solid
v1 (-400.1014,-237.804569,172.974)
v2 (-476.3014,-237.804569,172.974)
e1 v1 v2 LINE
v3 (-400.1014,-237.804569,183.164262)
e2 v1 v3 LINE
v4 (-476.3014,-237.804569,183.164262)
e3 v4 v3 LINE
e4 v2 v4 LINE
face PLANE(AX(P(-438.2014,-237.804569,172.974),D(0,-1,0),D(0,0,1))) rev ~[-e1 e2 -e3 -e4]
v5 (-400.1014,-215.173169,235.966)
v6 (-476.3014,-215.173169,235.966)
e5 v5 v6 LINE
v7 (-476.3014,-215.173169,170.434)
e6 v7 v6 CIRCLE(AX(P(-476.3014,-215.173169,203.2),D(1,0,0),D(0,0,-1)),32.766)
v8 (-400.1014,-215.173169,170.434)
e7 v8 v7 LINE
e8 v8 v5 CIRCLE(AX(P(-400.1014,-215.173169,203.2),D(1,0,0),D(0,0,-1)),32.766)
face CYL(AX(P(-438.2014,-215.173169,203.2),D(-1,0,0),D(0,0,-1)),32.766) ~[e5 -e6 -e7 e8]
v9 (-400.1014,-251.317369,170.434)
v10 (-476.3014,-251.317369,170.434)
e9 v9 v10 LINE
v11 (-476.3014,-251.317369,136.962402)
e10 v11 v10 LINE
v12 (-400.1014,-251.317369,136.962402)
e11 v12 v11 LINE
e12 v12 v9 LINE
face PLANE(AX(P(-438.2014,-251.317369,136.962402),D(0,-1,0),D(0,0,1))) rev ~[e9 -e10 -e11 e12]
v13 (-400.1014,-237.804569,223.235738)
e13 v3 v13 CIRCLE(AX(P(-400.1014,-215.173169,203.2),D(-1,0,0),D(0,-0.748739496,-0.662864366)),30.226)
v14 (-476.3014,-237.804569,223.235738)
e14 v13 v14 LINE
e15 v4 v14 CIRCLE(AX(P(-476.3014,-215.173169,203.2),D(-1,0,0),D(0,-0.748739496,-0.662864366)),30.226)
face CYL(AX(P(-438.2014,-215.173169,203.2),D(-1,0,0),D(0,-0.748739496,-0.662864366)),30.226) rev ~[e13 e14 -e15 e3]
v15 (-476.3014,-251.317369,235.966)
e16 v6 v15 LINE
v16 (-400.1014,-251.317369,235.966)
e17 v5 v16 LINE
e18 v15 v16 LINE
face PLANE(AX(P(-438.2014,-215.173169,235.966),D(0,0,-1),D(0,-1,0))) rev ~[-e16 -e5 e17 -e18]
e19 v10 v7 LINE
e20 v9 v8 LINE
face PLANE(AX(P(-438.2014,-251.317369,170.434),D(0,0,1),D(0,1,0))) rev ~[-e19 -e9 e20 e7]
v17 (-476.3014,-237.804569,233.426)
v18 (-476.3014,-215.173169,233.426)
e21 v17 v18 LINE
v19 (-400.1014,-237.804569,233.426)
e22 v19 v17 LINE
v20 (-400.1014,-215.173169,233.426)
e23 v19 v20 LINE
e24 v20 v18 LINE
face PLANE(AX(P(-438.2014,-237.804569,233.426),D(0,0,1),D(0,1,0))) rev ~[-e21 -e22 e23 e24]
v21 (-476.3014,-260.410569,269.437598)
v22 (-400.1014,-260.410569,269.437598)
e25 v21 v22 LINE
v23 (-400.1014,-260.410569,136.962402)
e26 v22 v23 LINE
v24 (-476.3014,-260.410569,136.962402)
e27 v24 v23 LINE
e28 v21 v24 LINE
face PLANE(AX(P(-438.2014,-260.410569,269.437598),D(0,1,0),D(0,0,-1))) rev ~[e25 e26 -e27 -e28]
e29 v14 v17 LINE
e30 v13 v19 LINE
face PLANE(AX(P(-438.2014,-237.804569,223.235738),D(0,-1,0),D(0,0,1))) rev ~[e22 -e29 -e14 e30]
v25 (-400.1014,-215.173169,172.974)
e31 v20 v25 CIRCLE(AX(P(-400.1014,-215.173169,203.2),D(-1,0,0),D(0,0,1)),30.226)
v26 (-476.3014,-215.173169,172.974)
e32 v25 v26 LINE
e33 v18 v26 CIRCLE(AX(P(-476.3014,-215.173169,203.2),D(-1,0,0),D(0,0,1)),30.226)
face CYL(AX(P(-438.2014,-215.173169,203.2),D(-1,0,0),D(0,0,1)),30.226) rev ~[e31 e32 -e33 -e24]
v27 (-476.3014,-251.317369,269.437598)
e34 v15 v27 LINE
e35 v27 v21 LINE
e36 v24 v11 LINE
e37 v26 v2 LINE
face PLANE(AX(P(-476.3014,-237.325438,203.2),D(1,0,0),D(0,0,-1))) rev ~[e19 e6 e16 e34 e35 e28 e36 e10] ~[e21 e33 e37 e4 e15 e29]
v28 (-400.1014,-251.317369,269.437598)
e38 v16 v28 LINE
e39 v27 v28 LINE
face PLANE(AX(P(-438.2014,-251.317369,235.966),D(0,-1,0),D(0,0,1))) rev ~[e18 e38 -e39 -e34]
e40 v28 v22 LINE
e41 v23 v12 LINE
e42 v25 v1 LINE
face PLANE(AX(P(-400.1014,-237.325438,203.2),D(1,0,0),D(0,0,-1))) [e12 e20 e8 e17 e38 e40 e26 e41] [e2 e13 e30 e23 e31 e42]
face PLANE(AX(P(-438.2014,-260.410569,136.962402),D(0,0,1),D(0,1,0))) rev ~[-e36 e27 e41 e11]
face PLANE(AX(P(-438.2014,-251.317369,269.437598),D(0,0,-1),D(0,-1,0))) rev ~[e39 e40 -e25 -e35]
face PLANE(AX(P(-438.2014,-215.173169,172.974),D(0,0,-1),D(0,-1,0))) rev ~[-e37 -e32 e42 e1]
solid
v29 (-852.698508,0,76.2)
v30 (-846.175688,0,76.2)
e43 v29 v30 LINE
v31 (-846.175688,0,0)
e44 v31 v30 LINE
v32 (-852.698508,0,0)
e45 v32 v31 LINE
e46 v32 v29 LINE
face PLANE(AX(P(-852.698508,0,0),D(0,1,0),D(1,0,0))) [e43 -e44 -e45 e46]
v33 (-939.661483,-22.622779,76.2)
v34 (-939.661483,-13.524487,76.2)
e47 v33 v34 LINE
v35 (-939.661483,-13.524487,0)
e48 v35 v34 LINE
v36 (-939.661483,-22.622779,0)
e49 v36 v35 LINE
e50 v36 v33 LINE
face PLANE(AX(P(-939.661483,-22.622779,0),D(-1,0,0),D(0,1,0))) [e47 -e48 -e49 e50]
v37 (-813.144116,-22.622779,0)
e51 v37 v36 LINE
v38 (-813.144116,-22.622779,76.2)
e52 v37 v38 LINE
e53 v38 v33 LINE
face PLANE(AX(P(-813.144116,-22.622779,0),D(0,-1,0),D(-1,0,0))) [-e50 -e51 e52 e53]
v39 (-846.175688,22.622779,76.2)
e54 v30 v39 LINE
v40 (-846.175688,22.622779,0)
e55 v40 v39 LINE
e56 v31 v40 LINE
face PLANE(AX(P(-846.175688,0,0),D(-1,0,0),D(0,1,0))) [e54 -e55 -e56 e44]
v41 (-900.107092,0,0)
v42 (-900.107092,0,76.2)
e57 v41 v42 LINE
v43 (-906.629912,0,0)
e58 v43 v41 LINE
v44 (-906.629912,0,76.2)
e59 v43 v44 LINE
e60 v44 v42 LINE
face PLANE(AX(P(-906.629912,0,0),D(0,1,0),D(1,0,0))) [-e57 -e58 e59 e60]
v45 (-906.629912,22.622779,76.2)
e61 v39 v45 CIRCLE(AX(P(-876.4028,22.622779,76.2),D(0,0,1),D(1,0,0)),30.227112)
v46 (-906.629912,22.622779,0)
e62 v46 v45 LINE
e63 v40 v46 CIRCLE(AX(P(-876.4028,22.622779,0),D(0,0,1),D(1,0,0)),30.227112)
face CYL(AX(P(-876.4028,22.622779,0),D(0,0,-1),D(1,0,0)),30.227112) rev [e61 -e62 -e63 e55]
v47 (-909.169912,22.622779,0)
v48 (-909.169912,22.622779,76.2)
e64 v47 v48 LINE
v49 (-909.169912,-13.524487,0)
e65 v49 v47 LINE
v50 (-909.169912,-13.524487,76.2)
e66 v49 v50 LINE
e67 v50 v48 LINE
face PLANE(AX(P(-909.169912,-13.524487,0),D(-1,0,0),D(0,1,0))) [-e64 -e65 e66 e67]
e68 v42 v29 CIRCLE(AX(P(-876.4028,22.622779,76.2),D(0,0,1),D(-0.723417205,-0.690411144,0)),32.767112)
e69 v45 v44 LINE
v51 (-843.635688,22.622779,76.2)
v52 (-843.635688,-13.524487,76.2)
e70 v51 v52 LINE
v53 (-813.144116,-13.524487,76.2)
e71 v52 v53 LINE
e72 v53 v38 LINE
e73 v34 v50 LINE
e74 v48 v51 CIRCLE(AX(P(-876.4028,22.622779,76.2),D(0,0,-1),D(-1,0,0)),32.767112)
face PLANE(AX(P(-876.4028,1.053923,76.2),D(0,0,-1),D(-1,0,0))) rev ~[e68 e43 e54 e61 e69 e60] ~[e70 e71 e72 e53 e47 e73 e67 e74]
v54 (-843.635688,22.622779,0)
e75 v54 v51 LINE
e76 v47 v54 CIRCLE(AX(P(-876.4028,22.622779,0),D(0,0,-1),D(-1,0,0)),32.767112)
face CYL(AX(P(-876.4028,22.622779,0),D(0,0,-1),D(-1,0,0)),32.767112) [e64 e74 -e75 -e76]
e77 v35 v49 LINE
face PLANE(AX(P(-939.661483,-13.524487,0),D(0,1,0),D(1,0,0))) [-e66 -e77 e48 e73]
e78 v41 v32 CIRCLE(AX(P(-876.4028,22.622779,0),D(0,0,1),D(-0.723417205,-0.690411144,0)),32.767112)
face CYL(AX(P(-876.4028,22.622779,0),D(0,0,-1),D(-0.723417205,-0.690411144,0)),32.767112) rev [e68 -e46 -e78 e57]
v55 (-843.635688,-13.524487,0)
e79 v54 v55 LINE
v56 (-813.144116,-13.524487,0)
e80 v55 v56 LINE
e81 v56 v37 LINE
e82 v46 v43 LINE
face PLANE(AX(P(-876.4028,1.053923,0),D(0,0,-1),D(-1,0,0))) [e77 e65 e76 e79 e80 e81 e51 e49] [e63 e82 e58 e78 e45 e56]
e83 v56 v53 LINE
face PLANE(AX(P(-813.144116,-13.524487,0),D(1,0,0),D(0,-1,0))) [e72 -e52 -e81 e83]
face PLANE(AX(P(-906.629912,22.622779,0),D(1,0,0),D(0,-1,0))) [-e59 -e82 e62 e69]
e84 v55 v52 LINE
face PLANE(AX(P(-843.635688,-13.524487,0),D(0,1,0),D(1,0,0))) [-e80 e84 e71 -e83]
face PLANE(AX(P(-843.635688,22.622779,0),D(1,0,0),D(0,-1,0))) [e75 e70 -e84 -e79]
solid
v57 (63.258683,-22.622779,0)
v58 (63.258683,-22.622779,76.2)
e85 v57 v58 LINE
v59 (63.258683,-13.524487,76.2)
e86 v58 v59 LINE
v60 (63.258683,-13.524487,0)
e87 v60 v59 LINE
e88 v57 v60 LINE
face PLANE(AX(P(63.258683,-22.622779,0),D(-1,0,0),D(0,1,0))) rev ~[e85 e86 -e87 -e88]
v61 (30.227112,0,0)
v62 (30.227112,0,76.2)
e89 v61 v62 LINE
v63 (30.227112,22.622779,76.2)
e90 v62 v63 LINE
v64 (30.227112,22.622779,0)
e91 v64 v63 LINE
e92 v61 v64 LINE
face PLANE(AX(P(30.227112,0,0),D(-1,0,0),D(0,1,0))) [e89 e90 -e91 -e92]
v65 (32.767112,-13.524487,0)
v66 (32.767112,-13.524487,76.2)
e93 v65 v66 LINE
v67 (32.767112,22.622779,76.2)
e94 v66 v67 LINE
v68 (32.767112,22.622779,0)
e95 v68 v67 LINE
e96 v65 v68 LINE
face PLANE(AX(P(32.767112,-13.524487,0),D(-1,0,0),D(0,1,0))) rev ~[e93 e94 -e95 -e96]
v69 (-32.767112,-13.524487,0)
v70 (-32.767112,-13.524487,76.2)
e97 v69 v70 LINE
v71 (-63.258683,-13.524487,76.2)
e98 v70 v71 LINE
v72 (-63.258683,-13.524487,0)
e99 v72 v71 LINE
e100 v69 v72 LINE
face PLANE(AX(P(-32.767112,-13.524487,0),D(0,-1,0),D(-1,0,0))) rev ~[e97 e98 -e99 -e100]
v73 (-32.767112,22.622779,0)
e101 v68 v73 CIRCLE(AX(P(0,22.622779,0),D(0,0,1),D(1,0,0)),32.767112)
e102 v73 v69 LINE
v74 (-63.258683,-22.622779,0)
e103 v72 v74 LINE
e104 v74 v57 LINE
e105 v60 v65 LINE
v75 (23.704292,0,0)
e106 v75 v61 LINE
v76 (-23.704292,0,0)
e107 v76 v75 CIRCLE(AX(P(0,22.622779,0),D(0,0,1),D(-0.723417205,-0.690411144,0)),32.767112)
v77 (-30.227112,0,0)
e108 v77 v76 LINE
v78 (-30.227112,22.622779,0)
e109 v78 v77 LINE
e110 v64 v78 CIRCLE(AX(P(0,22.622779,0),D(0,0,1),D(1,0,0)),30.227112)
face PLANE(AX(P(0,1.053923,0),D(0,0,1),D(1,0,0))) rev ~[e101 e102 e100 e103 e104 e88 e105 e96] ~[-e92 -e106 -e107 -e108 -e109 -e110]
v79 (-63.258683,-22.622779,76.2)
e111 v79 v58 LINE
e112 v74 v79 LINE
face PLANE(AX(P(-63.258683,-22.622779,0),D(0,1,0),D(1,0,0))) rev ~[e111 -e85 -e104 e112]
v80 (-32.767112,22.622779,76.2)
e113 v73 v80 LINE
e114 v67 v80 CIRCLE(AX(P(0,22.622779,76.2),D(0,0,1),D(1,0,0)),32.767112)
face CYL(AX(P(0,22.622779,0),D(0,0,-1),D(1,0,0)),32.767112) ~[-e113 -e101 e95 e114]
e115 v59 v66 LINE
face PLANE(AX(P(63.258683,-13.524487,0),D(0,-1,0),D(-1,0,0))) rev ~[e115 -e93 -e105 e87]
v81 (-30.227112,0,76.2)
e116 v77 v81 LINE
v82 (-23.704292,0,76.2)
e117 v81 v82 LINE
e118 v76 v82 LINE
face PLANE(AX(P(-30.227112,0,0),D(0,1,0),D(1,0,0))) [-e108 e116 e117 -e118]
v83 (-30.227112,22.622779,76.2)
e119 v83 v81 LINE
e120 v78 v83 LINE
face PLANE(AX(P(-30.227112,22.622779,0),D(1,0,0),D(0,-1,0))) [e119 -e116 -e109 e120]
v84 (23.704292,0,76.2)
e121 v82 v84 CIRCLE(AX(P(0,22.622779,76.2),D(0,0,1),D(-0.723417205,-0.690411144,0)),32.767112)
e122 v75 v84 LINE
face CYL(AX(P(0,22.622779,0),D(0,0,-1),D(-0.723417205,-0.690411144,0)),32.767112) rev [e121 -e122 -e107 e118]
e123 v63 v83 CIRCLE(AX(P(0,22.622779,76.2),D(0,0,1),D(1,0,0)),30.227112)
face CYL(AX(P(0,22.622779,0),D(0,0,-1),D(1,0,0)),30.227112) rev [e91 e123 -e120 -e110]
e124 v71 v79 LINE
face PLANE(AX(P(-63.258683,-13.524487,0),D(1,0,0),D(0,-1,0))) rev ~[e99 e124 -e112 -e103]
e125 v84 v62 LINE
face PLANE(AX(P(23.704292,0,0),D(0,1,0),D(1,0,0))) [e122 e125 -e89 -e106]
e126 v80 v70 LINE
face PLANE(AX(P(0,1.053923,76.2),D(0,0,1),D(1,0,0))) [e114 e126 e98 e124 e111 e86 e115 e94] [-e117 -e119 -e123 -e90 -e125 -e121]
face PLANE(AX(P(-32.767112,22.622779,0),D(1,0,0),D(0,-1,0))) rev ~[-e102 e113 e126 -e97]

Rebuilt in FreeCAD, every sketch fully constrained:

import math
import FreeCAD as App
import Part
import Sketcher

V = App.Vector
Q = App.Units.Quantity

doc = App.newDocument("Part")
body = doc.addObject("PartDesign::Body", "Body")

sketch1 = doc.addObject("Sketcher::SketchObject", "Sketch")
body.addObject(sketch1)
sketch1.AttachmentSupport = (doc.XY_Plane, [""])
sketch1.MapMode = "FlatFace"
sketch1.addGeometry(Part.LineSegment(V(63.258683, -22.622779, 0), V(63.258683, -13.524487, 0)), False)
sketch1.addGeometry(Part.LineSegment(V(63.258683, -13.524487, 0), V(32.767112, -13.524487, 0)), False)
sketch1.addGeometry(Part.LineSegment(V(32.767112, -13.524487, 0), V(32.767112, 22.622779, 0)), False)
sketch1.addGeometry(Part.ArcOfCircle(Part.Circle(V(0, 22.622779, 0), V(0, 0, 1), 32.767112), math.radians(0), math.radians(180)), False)
sketch1.addGeometry(Part.LineSegment(V(-32.767112, 22.622779, 0), V(-32.767112, -13.524487, 0)), False)
sketch1.addGeometry(Part.LineSegment(V(-32.767112, -13.524487, 0), V(-63.258683, -13.524487, 0)), False)
sketch1.addGeometry(Part.LineSegment(V(-63.258683, -13.524487, 0), V(-63.258683, -22.622779, 0)), False)
sketch1.addGeometry(Part.LineSegment(V(-63.258683, -22.622779, 0), V(63.258683, -22.622779, 0)), False)
sketch1.addGeometry(Part.LineSegment(V(-23.704292, 0, 0), V(-30.227112, 0, 0)), False)
sketch1.addGeometry(Part.LineSegment(V(-30.227112, 0, 0), V(-30.227112, 22.622779, 0)), False)
sketch1.addGeometry(Part.ArcOfCircle(Part.Circle(V(0, 22.622779, 0), V(0, 0, 1), 30.227112), math.radians(0), math.radians(180)), False)
sketch1.addGeometry(Part.LineSegment(V(30.227112, 22.622779, 0), V(30.227112, 0, 0)), False)
sketch1.addGeometry(Part.LineSegment(V(30.227112, 0, 0), V(23.704292, 0, 0)), False)
sketch1.addGeometry(Part.ArcOfCircle(Part.Circle(V(0, 22.622779, 0), V(0, 0, 1), 32.767112), math.radians(-136.337337), math.radians(-43.662663)), False)
sketch1.addConstraint(Sketcher.Constraint("Coincident", 0, 2, 1, 1))
sketch1.addConstraint(Sketcher.Constraint("Coincident", 1, 2, 2, 1))
sketch1.addConstraint(Sketcher.Constraint("Tangent", 2, 2, 3, 1))
sketch1.addConstraint(Sketcher.Constraint("Tangent", 3, 2, 4, 1))
sketch1.addConstraint(Sketcher.Constraint("Coincident", 4, 2, 5, 1))
sketch1.addConstraint(Sketcher.Constraint("Coincident", 5, 2, 6, 1))
sketch1.addConstraint(Sketcher.Constraint("Coincident", 6, 2, 7, 1))
sketch1.addConstraint(Sketcher.Constraint("Coincident", 7, 2, 0, 1))
sketch1.addConstraint(Sketcher.Constraint("Coincident", 8, 2, 9, 1))
sketch1.addConstraint(Sketcher.Constraint("Tangent", 9, 2, 10, 2))
sketch1.addConstraint(Sketcher.Constraint("Tangent", 10, 1, 11, 1))
sketch1.addConstraint(Sketcher.Constraint("Coincident", 11, 2, 12, 1))
sketch1.addConstraint(Sketcher.Constraint("Coincident", 12, 2, 13, 2))
sketch1.addConstraint(Sketcher.Constraint("Coincident", 13, 1, 8, 1))
sketch1.addConstraint(Sketcher.Constraint("Vertical", 0))
sketch1.addConstraint(Sketcher.Constraint("Horizontal", 1))
sketch1.addConstraint(Sketcher.Constraint("Vertical", 2))
sketch1.addConstraint(Sketcher.Constraint("Vertical", 4))
sketch1.addConstraint(Sketcher.Constraint("Horizontal", 5))
sketch1.addConstraint(Sketcher.Constraint("Vertical", 6))
sketch1.addConstraint(Sketcher.Constraint("Horizontal", 7))
sketch1.addConstraint(Sketcher.Constraint("Horizontal", 8))
sketch1.addConstraint(Sketcher.Constraint("Vertical", 9))
sketch1.addConstraint(Sketcher.Constraint("Vertical", 11))
sketch1.addConstraint(Sketcher.Constraint("Horizontal", 12))
sketch1.addConstraint(Sketcher.Constraint("Coincident", 10, 3, 3, 3))
sketch1.addConstraint(Sketcher.Constraint("Coincident", 13, 3, 3, 3))
sketch1.addConstraint(Sketcher.Constraint("Equal", 3, 13))
sketch1.addConstraint(Sketcher.Constraint("Symmetric", 8, 2, 11, 2, -1, 1))
sketch1.addConstraint(Sketcher.Constraint("Symmetric", 0, 2, 5, 2, -2))
sketch1.addConstraint(Sketcher.Constraint("PointOnObject", 8, 2, -1))
sketch1.addConstraint(Sketcher.Constraint("DistanceX", 4, 2, 8, 2, Q("0.1 in")))
sketch1.addConstraint(Sketcher.Constraint("Radius", 3, 32.767112))
sketch1.addConstraint(Sketcher.Constraint("DistanceX", 1, 2, 1, 1, 30.491572))
sketch1.addConstraint(Sketcher.Constraint("DistanceX", 8, 2, 8, 1, 6.522819))
sketch1.addConstraint(Sketcher.Constraint("DistanceY", 0, 1, 0, 2, 9.098292))
sketch1.addConstraint(Sketcher.Constraint("DistanceY", 2, 1, 2, 2, 36.147267))
pad1 = doc.addObject("PartDesign::Pad", "Pad")
body.addObject(pad1)
pad1.Profile = sketch1
pad1.Length = Q("3 in")
body2 = doc.addObject("PartDesign::Body", "Body001")

sketch2 = doc.addObject("Sketcher::SketchObject", "Sketch001")
body2.addObject(sketch2)
sketch2.AttachmentSupport = (doc.getObject("XY_Plane001"), [""])
sketch2.MapMode = "FlatFace"
sketch2.addGeometry(Part.LineSegment(V(-939.661483, -13.524487, 0), V(-939.661483, -22.622779, 0)), False)
sketch2.addGeometry(Part.LineSegment(V(-939.661483, -22.622779, 0), V(-813.144116, -22.622779, 0)), False)
sketch2.addGeometry(Part.LineSegment(V(-813.144116, -22.622779, 0), V(-813.144116, -13.524487, 0)), False)
sketch2.addGeometry(Part.LineSegment(V(-813.144116, -13.524487, 0), V(-843.635688, -13.524487, 0)), False)
sketch2.addGeometry(Part.LineSegment(V(-843.635688, -13.524487, 0), V(-843.635688, 22.622779, 0)), False)
sketch2.addGeometry(Part.ArcOfCircle(Part.Circle(V(-876.4028, 22.622779, 0), V(0, 0, 1), 32.767112), math.radians(0), math.radians(180)), False)
sketch2.addGeometry(Part.LineSegment(V(-909.169912, 22.622779, 0), V(-909.169912, -13.524487, 0)), False)
sketch2.addGeometry(Part.LineSegment(V(-909.169912, -13.524487, 0), V(-939.661483, -13.524487, 0)), False)
sketch2.addGeometry(Part.ArcOfCircle(Part.Circle(V(-876.4028, 22.622779, 0), V(0, 0, 1), 32.767112), math.radians(-136.337337), math.radians(-43.662663)), False)
sketch2.addGeometry(Part.LineSegment(V(-900.107092, 0, 0), V(-906.629912, 0, 0)), False)
sketch2.addGeometry(Part.LineSegment(V(-906.629912, 0, 0), V(-906.629912, 22.622779, 0)), False)
sketch2.addGeometry(Part.ArcOfCircle(Part.Circle(V(-876.4028, 22.622779, 0), V(0, 0, 1), 30.227112), math.radians(0), math.radians(180)), False)
sketch2.addGeometry(Part.LineSegment(V(-846.175688, 22.622779, 0), V(-846.175688, 0, 0)), False)
sketch2.addGeometry(Part.LineSegment(V(-846.175688, 0, 0), V(-852.698508, 0, 0)), False)
sketch2.addConstraint(Sketcher.Constraint("Coincident", 0, 2, 1, 1))
sketch2.addConstraint(Sketcher.Constraint("Coincident", 1, 2, 2, 1))
sketch2.addConstraint(Sketcher.Constraint("Coincident", 2, 2, 3, 1))
sketch2.addConstraint(Sketcher.Constraint("Coincident", 3, 2, 4, 1))
sketch2.addConstraint(Sketcher.Constraint("Tangent", 4, 2, 5, 1))
sketch2.addConstraint(Sketcher.Constraint("Tangent", 5, 2, 6, 1))
sketch2.addConstraint(Sketcher.Constraint("Coincident", 6, 2, 7, 1))
sketch2.addConstraint(Sketcher.Constraint("Coincident", 7, 2, 0, 1))
sketch2.addConstraint(Sketcher.Constraint("Coincident", 8, 1, 9, 1))
sketch2.addConstraint(Sketcher.Constraint("Coincident", 9, 2, 10, 1))
sketch2.addConstraint(Sketcher.Constraint("Tangent", 10, 2, 11, 2))
sketch2.addConstraint(Sketcher.Constraint("Tangent", 11, 1, 12, 1))
sketch2.addConstraint(Sketcher.Constraint("Coincident", 12, 2, 13, 1))
sketch2.addConstraint(Sketcher.Constraint("Coincident", 13, 2, 8, 2))
sketch2.addConstraint(Sketcher.Constraint("Vertical", 0))
sketch2.addConstraint(Sketcher.Constraint("Horizontal", 1))
sketch2.addConstraint(Sketcher.Constraint("Vertical", 2))
sketch2.addConstraint(Sketcher.Constraint("Horizontal", 3))
sketch2.addConstraint(Sketcher.Constraint("Vertical", 4))
sketch2.addConstraint(Sketcher.Constraint("Vertical", 6))
sketch2.addConstraint(Sketcher.Constraint("Horizontal", 7))
sketch2.addConstraint(Sketcher.Constraint("Horizontal", 9))
sketch2.addConstraint(Sketcher.Constraint("Vertical", 10))
sketch2.addConstraint(Sketcher.Constraint("Vertical", 12))
sketch2.addConstraint(Sketcher.Constraint("Horizontal", 13))
sketch2.addConstraint(Sketcher.Constraint("Coincident", 8, 3, 5, 3))
sketch2.addConstraint(Sketcher.Constraint("Coincident", 11, 3, 5, 3))
sketch2.addConstraint(Sketcher.Constraint("Equal", 5, 8))
sketch2.addConstraint(Sketcher.Constraint("PointOnObject", 8, 1, -1))
sketch2.addConstraint(Sketcher.Constraint("PointOnObject", 12, 2, -1))
sketch2.addConstraint(Sketcher.Constraint("Horizontal", 3, 2, 6, 2))
sketch2.addConstraint(Sketcher.Constraint("Equal", 3, 7))
sketch2.addConstraint(Sketcher.Constraint("DistanceX", 6, 2, 9, 2, Q("0.1 in")))
sketch2.addConstraint(Sketcher.Constraint("Radius", 5, 32.767112))
sketch2.addConstraint(Sketcher.Constraint("DistanceX", 3, 2, 3, 1, 30.491572))
sketch2.addConstraint(Sketcher.Constraint("DistanceX", 9, 2, 9, 1, 6.522819))
sketch2.addConstraint(Sketcher.Constraint("DistanceY", 0, 2, 0, 1, 9.098292))
sketch2.addConstraint(Sketcher.Constraint("DistanceX", 5, 3, -1, 1, 876.4028))
sketch2.addConstraint(Sketcher.Constraint("DistanceY", 4, 1, 4, 2, 36.147267))
pad2 = doc.addObject("PartDesign::Pad", "Pad001")
body2.addObject(pad2)
pad2.Profile = sketch2
pad2.Length = Q("3 in")
body3 = doc.addObject("PartDesign::Body", "Body002")

sketch3 = doc.addObject("Sketcher::SketchObject", "Sketch002")
body3.addObject(sketch3)
sketch3.AttachmentSupport = (doc.getObject("YZ_Plane002"), [""])
sketch3.MapMode = "FlatFace"
sketch3.AttachmentOffset = App.Placement(V(0, 0, -438.2014), App.Rotation())
sketch3.addGeometry(Part.LineSegment(V(-251.317369, 235.966, 0), V(-215.173169, 235.966, 0)), False)
sketch3.addGeometry(Part.ArcOfCircle(Part.Circle(V(-215.173169, 203.2, 0), V(0, 0, 1), 32.766), math.radians(-90), math.radians(90)), False)
sketch3.addGeometry(Part.LineSegment(V(-215.173169, 170.434, 0), V(-251.317369, 170.434, 0)), False)
sketch3.addGeometry(Part.LineSegment(V(-251.317369, 170.434, 0), V(-251.317369, 136.962402, 0)), False)
sketch3.addGeometry(Part.LineSegment(V(-251.317369, 136.962402, 0), V(-260.410569, 136.962402, 0)), False)
sketch3.addGeometry(Part.LineSegment(V(-260.410569, 136.962402, 0), V(-260.410569, 269.437598, 0)), False)
sketch3.addGeometry(Part.LineSegment(V(-260.410569, 269.437598, 0), V(-251.317369, 269.437598, 0)), False)
sketch3.addGeometry(Part.LineSegment(V(-251.317369, 269.437598, 0), V(-251.317369, 235.966, 0)), False)
sketch3.addGeometry(Part.LineSegment(V(-237.804569, 183.164262, 0), V(-237.804569, 172.974, 0)), False)
sketch3.addGeometry(Part.LineSegment(V(-237.804569, 172.974, 0), V(-215.173169, 172.974, 0)), False)
sketch3.addGeometry(Part.ArcOfCircle(Part.Circle(V(-215.173169, 203.2, 0), V(0, 0, 1), 30.226), math.radians(-90), math.radians(90)), False)
sketch3.addGeometry(Part.LineSegment(V(-215.173169, 233.426, 0), V(-237.804569, 233.426, 0)), False)
sketch3.addGeometry(Part.LineSegment(V(-237.804569, 233.426, 0), V(-237.804569, 223.235738, 0)), False)
sketch3.addGeometry(Part.ArcOfCircle(Part.Circle(V(-215.173169, 203.2, 0), V(0, 0, 1), 30.226), math.radians(138.481307), math.radians(221.518693)), False)
sketch3.addConstraint(Sketcher.Constraint("Tangent", 0, 2, 1, 2))
sketch3.addConstraint(Sketcher.Constraint("Tangent", 1, 1, 2, 1))
sketch3.addConstraint(Sketcher.Constraint("Coincident", 2, 2, 3, 1))
sketch3.addConstraint(Sketcher.Constraint("Coincident", 3, 2, 4, 1))
sketch3.addConstraint(Sketcher.Constraint("Coincident", 4, 2, 5, 1))
sketch3.addConstraint(Sketcher.Constraint("Coincident", 5, 2, 6, 1))
sketch3.addConstraint(Sketcher.Constraint("Coincident", 6, 2, 7, 1))
sketch3.addConstraint(Sketcher.Constraint("Coincident", 7, 2, 0, 1))
sketch3.addConstraint(Sketcher.Constraint("Coincident", 8, 2, 9, 1))
sketch3.addConstraint(Sketcher.Constraint("Tangent", 9, 2, 10, 1))
sketch3.addConstraint(Sketcher.Constraint("Tangent", 10, 2, 11, 1))
sketch3.addConstraint(Sketcher.Constraint("Coincident", 11, 2, 12, 1))
sketch3.addConstraint(Sketcher.Constraint("Coincident", 12, 2, 13, 1))
sketch3.addConstraint(Sketcher.Constraint("Coincident", 13, 2, 8, 1))
sketch3.addConstraint(Sketcher.Constraint("Horizontal", 0))
sketch3.addConstraint(Sketcher.Constraint("Horizontal", 2))
sketch3.addConstraint(Sketcher.Constraint("Vertical", 3))
sketch3.addConstraint(Sketcher.Constraint("Horizontal", 4))
sketch3.addConstraint(Sketcher.Constraint("Vertical", 5))
sketch3.addConstraint(Sketcher.Constraint("Horizontal", 6))
sketch3.addConstraint(Sketcher.Constraint("Vertical", 7))
sketch3.addConstraint(Sketcher.Constraint("Vertical", 8))
sketch3.addConstraint(Sketcher.Constraint("Horizontal", 9))
sketch3.addConstraint(Sketcher.Constraint("Horizontal", 11))
sketch3.addConstraint(Sketcher.Constraint("Vertical", 12))
sketch3.addConstraint(Sketcher.Constraint("Coincident", 10, 3, 1, 3))
sketch3.addConstraint(Sketcher.Constraint("Coincident", 13, 3, 1, 3))
sketch3.addConstraint(Sketcher.Constraint("Equal", 10, 13))
sketch3.addConstraint(Sketcher.Constraint("Vertical", 3, 2, 6, 2))
sketch3.addConstraint(Sketcher.Constraint("Vertical", 8, 2, 11, 2))
sketch3.addConstraint(Sketcher.Constraint("Equal", 3, 7))
sketch3.addConstraint(Sketcher.Constraint("Radius", 1, Q("1.29 in")))
sketch3.addConstraint(Sketcher.Constraint("Radius", 10, Q("1.19 in")))
sketch3.addConstraint(Sketcher.Constraint("DistanceY", -1, 1, 1, 3, Q("8 in")))
sketch3.addConstraint(Sketcher.Constraint("DistanceX", 0, 1, 0, 2, Q("1.423 in")))
sketch3.addConstraint(Sketcher.Constraint("DistanceX", 4, 2, 4, 1, Q("0.358 in")))
sketch3.addConstraint(Sketcher.Constraint("DistanceX", 9, 1, 9, 2, Q("0.891 in")))
sketch3.addConstraint(Sketcher.Constraint("DistanceY", 3, 2, 3, 1, 33.471598))
sketch3.addConstraint(Sketcher.Constraint("DistanceX", 1, 3, -1, 1, 215.173169))
pad3 = doc.addObject("PartDesign::Pad", "Pad002")
body3.addObject(pad3)
pad3.Profile = sketch3
pad3.Length = Q("3 in")
pad3.Midplane = True

doc.recompute()
